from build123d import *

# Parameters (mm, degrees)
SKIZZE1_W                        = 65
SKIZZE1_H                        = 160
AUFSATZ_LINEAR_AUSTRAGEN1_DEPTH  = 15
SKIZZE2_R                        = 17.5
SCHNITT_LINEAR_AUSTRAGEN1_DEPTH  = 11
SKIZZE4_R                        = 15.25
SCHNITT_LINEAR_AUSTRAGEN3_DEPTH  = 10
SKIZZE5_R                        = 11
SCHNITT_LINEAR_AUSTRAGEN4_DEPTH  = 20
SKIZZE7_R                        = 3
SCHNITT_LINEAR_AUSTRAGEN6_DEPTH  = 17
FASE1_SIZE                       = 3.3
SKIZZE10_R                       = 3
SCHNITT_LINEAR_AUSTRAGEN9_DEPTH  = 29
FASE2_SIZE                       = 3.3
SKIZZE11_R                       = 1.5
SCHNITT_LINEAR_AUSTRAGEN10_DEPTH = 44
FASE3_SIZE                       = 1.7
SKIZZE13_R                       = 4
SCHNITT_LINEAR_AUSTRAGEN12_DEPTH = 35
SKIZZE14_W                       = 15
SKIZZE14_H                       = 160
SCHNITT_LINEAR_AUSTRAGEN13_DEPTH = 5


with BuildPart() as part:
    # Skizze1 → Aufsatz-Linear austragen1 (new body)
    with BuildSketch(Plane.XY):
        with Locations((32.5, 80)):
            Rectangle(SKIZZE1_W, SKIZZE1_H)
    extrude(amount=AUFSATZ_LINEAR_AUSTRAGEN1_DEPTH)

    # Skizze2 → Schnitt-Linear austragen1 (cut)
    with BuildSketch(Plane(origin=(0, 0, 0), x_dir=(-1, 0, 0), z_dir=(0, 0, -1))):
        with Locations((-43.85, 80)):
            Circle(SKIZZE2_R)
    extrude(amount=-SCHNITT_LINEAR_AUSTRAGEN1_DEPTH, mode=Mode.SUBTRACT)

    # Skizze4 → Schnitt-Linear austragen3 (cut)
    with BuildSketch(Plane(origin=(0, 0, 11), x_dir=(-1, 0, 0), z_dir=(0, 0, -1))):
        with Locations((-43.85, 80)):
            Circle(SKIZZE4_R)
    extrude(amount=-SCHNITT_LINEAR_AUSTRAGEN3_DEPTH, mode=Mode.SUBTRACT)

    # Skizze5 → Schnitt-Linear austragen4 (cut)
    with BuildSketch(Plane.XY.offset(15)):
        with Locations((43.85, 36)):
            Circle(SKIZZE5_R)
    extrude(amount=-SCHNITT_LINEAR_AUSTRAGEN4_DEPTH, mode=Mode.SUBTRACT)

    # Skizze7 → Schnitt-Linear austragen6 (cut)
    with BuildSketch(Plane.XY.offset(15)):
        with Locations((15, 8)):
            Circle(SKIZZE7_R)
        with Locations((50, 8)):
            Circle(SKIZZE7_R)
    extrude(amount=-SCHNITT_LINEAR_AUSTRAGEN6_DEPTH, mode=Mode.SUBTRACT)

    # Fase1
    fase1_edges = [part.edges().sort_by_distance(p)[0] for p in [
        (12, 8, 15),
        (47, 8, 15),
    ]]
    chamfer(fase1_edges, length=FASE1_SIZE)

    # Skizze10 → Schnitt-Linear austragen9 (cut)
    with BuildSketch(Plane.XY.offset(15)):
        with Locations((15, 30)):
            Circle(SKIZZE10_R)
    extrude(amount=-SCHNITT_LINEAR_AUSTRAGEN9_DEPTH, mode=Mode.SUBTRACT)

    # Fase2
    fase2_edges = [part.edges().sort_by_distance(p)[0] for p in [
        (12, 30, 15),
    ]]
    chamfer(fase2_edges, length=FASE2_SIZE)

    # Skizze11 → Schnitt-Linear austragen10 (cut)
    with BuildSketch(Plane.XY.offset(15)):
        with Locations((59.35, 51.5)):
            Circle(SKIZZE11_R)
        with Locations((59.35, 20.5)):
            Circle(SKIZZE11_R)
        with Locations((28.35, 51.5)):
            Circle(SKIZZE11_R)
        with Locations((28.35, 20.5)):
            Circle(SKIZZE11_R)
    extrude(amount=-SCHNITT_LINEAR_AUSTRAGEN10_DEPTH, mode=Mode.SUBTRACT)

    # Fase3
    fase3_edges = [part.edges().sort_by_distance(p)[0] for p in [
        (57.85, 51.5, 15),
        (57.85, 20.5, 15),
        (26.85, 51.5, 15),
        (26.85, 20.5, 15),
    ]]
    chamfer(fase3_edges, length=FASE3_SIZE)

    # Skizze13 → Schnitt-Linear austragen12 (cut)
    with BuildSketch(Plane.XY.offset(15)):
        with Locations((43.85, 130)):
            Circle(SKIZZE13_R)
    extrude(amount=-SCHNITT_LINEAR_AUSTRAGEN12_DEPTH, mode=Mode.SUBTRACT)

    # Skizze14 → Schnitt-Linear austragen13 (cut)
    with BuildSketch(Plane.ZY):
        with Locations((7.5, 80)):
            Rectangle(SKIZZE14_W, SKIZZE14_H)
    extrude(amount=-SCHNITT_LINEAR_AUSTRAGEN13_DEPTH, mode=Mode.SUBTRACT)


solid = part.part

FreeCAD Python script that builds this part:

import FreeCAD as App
import Part
import Sketcher

V = App.Vector
Q = App.Units.Quantity


def edges_at(feature, points):
    """Names of the edges that pass closest to the given points."""
    edges = feature.Shape.Edges
    near = lambda p: min(range(len(edges)), key=lambda i: edges[i].distToShape(Part.Vertex(*p))[0])
    return sorted({f"Edge{near(p) + 1}" for p in points})


def add_polygon(sketch, points):
    """Adds a closed chain of lines whose ends are joined by coincident constraints."""
    first, n = sketch.GeometryCount, len(points)
    for a, b in zip(points, points[1:] + points[:1]):
        sketch.addGeometry(Part.LineSegment(App.Vector(*a, 0), App.Vector(*b, 0)), False)
    for i in range(n):
        sketch.addConstraint(Sketcher.Constraint("Coincident", first + i, 2, first + (i + 1) % n, 1))

doc = App.newDocument("Part")
body = doc.addObject("PartDesign::Body", "Body")

# Sketch on XY plane
sketch1 = body.newObject("Sketcher::SketchObject", "Sketch")
sketch1.AttachmentSupport = (doc.getObject("XY_Plane"), [""])
sketch1.MapMode = "FlatFace"
add_polygon(sketch1, [(0, 160), (0, 0), (65, 0), (65, 160)])  # lines 0-3
sketch1.addConstraint(Sketcher.Constraint("Vertical", 0))
sketch1.addConstraint(Sketcher.Constraint("Horizontal", 1))
sketch1.addConstraint(Sketcher.Constraint("Vertical", 2))
sketch1.addConstraint(Sketcher.Constraint("Horizontal", 3))
sketch1.addConstraint(Sketcher.Constraint("Coincident", 0, 2, -1, 1))
sketch1.addConstraint(Sketcher.Constraint("DistanceX", 1, 1, 1, 2, Q("65 mm")))
sketch1.addConstraint(Sketcher.Constraint("DistanceY", 0, 2, 0, 1, Q("160 mm")))
pad1 = body.newObject("PartDesign::Pad", "Pad")
pad1.Profile = sketch1
pad1.Length = 15

# Sketch on XY plane
sketch2 = body.newObject("Sketcher::SketchObject", "Sketch001")
sketch2.AttachmentSupport = (doc.getObject("XY_Plane"), [""])
sketch2.MapMode = "FlatFace"
sketch2.addGeometry(Part.Circle(V(44, 80, 0), V(0, 0, 1), 18), False)
sketch2.addConstraint(Sketcher.Constraint("Diameter", 0, Q("35 mm")))
sketch2.addConstraint(Sketcher.Constraint("DistanceY", -1, 1, 0, 3, Q("80 mm")))
sketch2.addConstraint(Sketcher.Constraint("DistanceX", -1, 1, 0, 3, Q("43.85 mm")))
pocket1 = body.newObject("PartDesign::Pocket", "Pocket")
pocket1.Profile = sketch2
pocket1.Length = 11
pocket1.Reversed = True

# Sketch on XY plane
sketch3 = body.newObject("Sketcher::SketchObject", "Sketch002")
sketch3.AttachmentSupport = (doc.getObject("XY_Plane"), [""])
sketch3.MapMode = "FlatFace"
sketch3.AttachmentOffset = App.Placement(V(0, 0, 11), App.Rotation())
sketch3.addGeometry(Part.Circle(V(44, 80, 0), V(0, 0, 1), 15), False)
sketch3.addConstraint(Sketcher.Constraint("Diameter", 0, Q("30.5 mm")))
sketch3.addConstraint(Sketcher.Constraint("DistanceY", -1, 1, 0, 3, Q("80 mm")))
sketch3.addConstraint(Sketcher.Constraint("DistanceX", -1, 1, 0, 3, Q("43.85 mm")))
pocket2 = body.newObject("PartDesign::Pocket", "Pocket001")
pocket2.Profile = sketch3
pocket2.Length = 10
pocket2.Reversed = True

# Sketch on XY plane
sketch4 = body.newObject("Sketcher::SketchObject", "Sketch003")
sketch4.AttachmentSupport = (doc.getObject("XY_Plane"), [""])
sketch4.MapMode = "FlatFace"
sketch4.AttachmentOffset = App.Placement(V(0, 0, 15), App.Rotation())
sketch4.addGeometry(Part.Circle(V(44, 36, 0), V(0, 0, 1), 11), False)
sketch4.addConstraint(Sketcher.Constraint("Diameter", 0, Q("22 mm")))
sketch4.addConstraint(Sketcher.Constraint("DistanceY", -1, 1, 0, 3, Q("36 mm")))
sketch4.addConstraint(Sketcher.Constraint("DistanceX", -1, 1, 0, 3, Q("43.85 mm")))
pocket3 = body.newObject("PartDesign::Pocket", "Pocket002")
pocket3.Profile = sketch4
pocket3.Length = 20

# Sketch on XY plane
sketch5 = body.newObject("Sketcher::SketchObject", "Sketch004")
sketch5.AttachmentSupport = (doc.getObject("XY_Plane"), [""])
sketch5.MapMode = "FlatFace"
sketch5.AttachmentOffset = App.Placement(V(0, 0, 15), App.Rotation())
sketch5.addGeometry(Part.Circle(V(15, 8, 0), V(0, 0, 1), 3), False)
sketch5.addGeometry(Part.Circle(V(50, 8, 0), V(0, 0, 1), 3), False)
sketch5.addConstraint(Sketcher.Constraint("Equal", 0, 1))
sketch5.addConstraint(Sketcher.Constraint("Horizontal", 0, 3, 1, 3))
sketch5.addConstraint(Sketcher.Constraint("Diameter", 0, Q("6 mm")))
sketch5.addConstraint(Sketcher.Constraint("DistanceX", -1, 1, 0, 3, Q("15 mm")))
sketch5.addConstraint(Sketcher.Constraint("DistanceY", -1, 1, 0, 3, Q("8 mm")))
sketch5.addConstraint(Sketcher.Constraint("DistanceX", -1, 1, 1, 3, Q("50 mm")))
pocket4 = body.newObject("PartDesign::Pocket", "Pocket003")
pocket4.Profile = sketch5
pocket4.Length = 17
doc.recompute()

chamfer = body.newObject("PartDesign::Chamfer", "Chamfer")
chamfer.Base = (pocket4, edges_at(pocket4, [(12, 8, 15), (47, 8, 15)]))
chamfer.Size = 3.3

# Sketch on XY plane
sketch6 = body.newObject("Sketcher::SketchObject", "Sketch005")
sketch6.AttachmentSupport = (doc.getObject("XY_Plane"), [""])
sketch6.MapMode = "FlatFace"
sketch6.AttachmentOffset = App.Placement(V(0, 0, 15), App.Rotation())
sketch6.addGeometry(Part.Circle(V(15, 30, 0), V(0, 0, 1), 3), False)
sketch6.addConstraint(Sketcher.Constraint("Diameter", 0, Q("6 mm")))
sketch6.addConstraint(Sketcher.Constraint("DistanceX", -1, 1, 0, 3, Q("15 mm")))
sketch6.addConstraint(Sketcher.Constraint("DistanceY", -1, 1, 0, 3, Q("30 mm")))
pocket5 = body.newObject("PartDesign::Pocket", "Pocket004")
pocket5.Profile = sketch6
pocket5.Length = 29
doc.recompute()

chamfer2 = body.newObject("PartDesign::Chamfer", "Chamfer001")
chamfer2.Base = (pocket5, edges_at(pocket5, [(12, 30, 15)]))
chamfer2.Size = 3.3

# Sketch on XY plane
sketch7 = body.newObject("Sketcher::SketchObject", "Sketch006")
sketch7.AttachmentSupport = (doc.getObject("XY_Plane"), [""])
sketch7.MapMode = "FlatFace"
sketch7.AttachmentOffset = App.Placement(V(0, 0, 15), App.Rotation())
sketch7.addGeometry(Part.Circle(V(59.4, 51.5, 0), V(0, 0, 1), 1.5), False)
sketch7.addGeometry(Part.Circle(V(59.4, 20.5, 0), V(0, 0, 1), 1.5), False)
sketch7.addGeometry(Part.Circle(V(28.4, 51.5, 0), V(0, 0, 1), 1.5), False)
sketch7.addGeometry(Part.Circle(V(28.4, 20.5, 0), V(0, 0, 1), 1.5), False)
sketch7.addConstraint(Sketcher.Constraint("Equal", 0, 1))
sketch7.addConstraint(Sketcher.Constraint("Equal", 1, 2))
sketch7.addConstraint(Sketcher.Constraint("Equal", 2, 3))
sketch7.addConstraint(Sketcher.Constraint("Horizontal", 0, 3, 2, 3))
sketch7.addConstraint(Sketcher.Constraint("Horizontal", 1, 3, 3, 3))
sketch7.addConstraint(Sketcher.Constraint("Vertical", 0, 3, 1, 3))
sketch7.addConstraint(Sketcher.Constraint("Vertical", 2, 3, 3, 3))
sketch7.addConstraint(Sketcher.Constraint("Diameter", 0, Q("3 mm")))
sketch7.addConstraint(Sketcher.Constraint("DistanceY", 1, 3, 0, 3, Q("31 mm")))
sketch7.addConstraint(Sketcher.Constraint("DistanceX", 2, 3, 0, 3, Q("31 mm")))
sketch7.addConstraint(Sketcher.Constraint("DistanceY", -1, 1, 0, 3, Q("51.5 mm")))
sketch7.addConstraint(Sketcher.Constraint("DistanceX", -1, 1, 0, 3, Q("59.35 mm")))
pocket6 = body.newObject("PartDesign::Pocket", "Pocket005")
pocket6.Profile = sketch7
pocket6.Length = 44
doc.recompute()

chamfer3 = body.newObject("PartDesign::Chamfer", "Chamfer002")
chamfer3.Base = (pocket6, edges_at(pocket6, [
    (57.85, 51.5, 15),
    (57.85, 20.5, 15),
    (26.85, 51.5, 15),
    (26.85, 20.5, 15),
]))
chamfer3.Size = 1.7

# Sketch on XY plane
sketch8 = body.newObject("Sketcher::SketchObject", "Sketch007")
sketch8.AttachmentSupport = (doc.getObject("XY_Plane"), [""])
sketch8.MapMode = "FlatFace"
sketch8.AttachmentOffset = App.Placement(V(0, 0, 15), App.Rotation())
sketch8.addGeometry(Part.Circle(V(43.9, 130, 0), V(0, 0, 1), 4), False)
sketch8.addConstraint(Sketcher.Constraint("Diameter", 0, Q("8 mm")))
sketch8.addConstraint(Sketcher.Constraint("DistanceY", -1, 1, 0, 3, Q("130 mm")))
sketch8.addConstraint(Sketcher.Constraint("DistanceX", -1, 1, 0, 3, Q("43.85 mm")))
pocket7 = body.newObject("PartDesign::Pocket", "Pocket006")
pocket7.Profile = sketch8
pocket7.Length = 35

# Sketch on YZ plane
sketch9 = body.newObject("Sketcher::SketchObject", "Sketch008")
sketch9.AttachmentSupport = (doc.getObject("YZ_Plane"), [""])
sketch9.MapMode = "FlatFace"
add_polygon(sketch9, [(160, 0), (0, 0), (0, 15), (160, 15)])  # lines 0-3
sketch9.addConstraint(Sketcher.Constraint("Horizontal", 0))
sketch9.addConstraint(Sketcher.Constraint("Vertical", 1))
sketch9.addConstraint(Sketcher.Constraint("Horizontal", 2))
sketch9.addConstraint(Sketcher.Constraint("Vertical", 3))
sketch9.addConstraint(Sketcher.Constraint("Coincident", 0, 2, -1, 1))
sketch9.addConstraint(Sketcher.Constraint("DistanceX", 0, 2, 0, 1, Q("160 mm")))
sketch9.addConstraint(Sketcher.Constraint("DistanceY", 1, 1, 1, 2, Q("15 mm")))
pocket8 = body.newObject("PartDesign::Pocket", "Pocket007")
pocket8.Profile = sketch9
pocket8.Length = 5
pocket8.Reversed = True

doc.recompute()
